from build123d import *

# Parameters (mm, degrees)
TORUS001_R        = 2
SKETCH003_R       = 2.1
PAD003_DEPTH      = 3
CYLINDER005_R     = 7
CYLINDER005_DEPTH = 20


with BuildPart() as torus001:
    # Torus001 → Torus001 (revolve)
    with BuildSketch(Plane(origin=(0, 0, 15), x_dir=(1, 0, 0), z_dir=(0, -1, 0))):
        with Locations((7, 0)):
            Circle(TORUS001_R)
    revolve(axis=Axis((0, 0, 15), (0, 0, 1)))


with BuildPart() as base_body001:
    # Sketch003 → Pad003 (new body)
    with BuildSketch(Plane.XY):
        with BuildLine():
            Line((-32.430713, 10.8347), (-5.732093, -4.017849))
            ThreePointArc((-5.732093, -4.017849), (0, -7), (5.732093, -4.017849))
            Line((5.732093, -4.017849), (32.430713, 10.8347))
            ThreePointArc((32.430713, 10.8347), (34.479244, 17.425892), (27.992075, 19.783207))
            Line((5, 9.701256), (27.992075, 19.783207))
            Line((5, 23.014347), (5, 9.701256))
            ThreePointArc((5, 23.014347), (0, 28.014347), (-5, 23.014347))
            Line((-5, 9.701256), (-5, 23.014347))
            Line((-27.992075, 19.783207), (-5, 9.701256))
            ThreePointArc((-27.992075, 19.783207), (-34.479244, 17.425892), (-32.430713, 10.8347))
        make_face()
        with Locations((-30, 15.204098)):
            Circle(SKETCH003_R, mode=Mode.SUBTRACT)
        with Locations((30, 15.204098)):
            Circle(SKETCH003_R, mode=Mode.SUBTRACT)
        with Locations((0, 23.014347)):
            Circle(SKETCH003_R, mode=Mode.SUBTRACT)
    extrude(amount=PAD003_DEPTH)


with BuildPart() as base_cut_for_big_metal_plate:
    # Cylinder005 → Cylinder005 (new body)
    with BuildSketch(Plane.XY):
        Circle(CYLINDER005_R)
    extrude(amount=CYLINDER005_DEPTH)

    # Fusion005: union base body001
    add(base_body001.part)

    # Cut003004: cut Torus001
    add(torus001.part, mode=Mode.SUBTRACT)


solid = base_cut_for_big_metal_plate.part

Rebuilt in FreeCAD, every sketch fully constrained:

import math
import FreeCAD as App
import Part
import Sketcher
Q = App.Units.Quantity

doc = App.newDocument("Part")
body = doc.addObject("PartDesign::Body", "Body")

sketch1 = doc.addObject("Sketcher::SketchObject", "Sketch")
body.addObject(sketch1)
sketch1.AttachmentSupport = (doc.XZ_Plane, [""])
sketch1.MapMode = "FlatFace"
sketch1.addGeometry(Part.Circle(App.Vector(7, 15, 0), App.Vector(0, 0, 1), 2), False)
sketch1.addConstraint([
    Sketcher.Constraint("Diameter", 0, Q("4 mm")),
    Sketcher.Constraint("DistanceX", -1, 1, 0, 3, Q("7 mm")),
    Sketcher.Constraint("DistanceY", -1, 1, 0, 3, Q("15 mm")),
])
revolution = doc.addObject("PartDesign::Revolution", "Revolution")
body.addObject(revolution)
revolution.Profile = sketch1
revolution.ReferenceAxis = (sketch1, ["V_Axis"])
revolution.Angle = 360
body2 = doc.addObject("PartDesign::Body", "Body001")

sketch2 = doc.addObject("Sketcher::SketchObject", "Sketch001")
body2.addObject(sketch2)
sketch2.AttachmentSupport = (doc.getObject("XY_Plane001"), [""])
sketch2.MapMode = "FlatFace"
sketch2.addGeometry([
    Part.LineSegment(App.Vector(-32.430713, 10.8347, 0), App.Vector(-5.732093, -4.017849, 0)),
    Part.ArcOfCircle(Part.Circle(App.Vector(0, 0, 0), App.Vector(0, 0, 1), 7), math.radians(-144.971877), math.radians(-35.028123)),
    Part.LineSegment(App.Vector(5.732093, -4.017849, 0), App.Vector(32.430713, 10.8347, 0)),
    Part.ArcOfCircle(Part.Circle(App.Vector(29.999999, 15.204098, 0), App.Vector(0, 0, 1), 5), math.radians(-60.912634), math.radians(113.677291)),
    Part.LineSegment(App.Vector(27.992075, 19.783207, 0), App.Vector(5, 9.701256, 0)),
    Part.LineSegment(App.Vector(5, 9.701256, 0), App.Vector(5, 23.014347, 0)),
    Part.ArcOfCircle(Part.Circle(App.Vector(0, 23.014347, 0), App.Vector(0, 0, 1), 5), math.radians(0), math.radians(180)),
    Part.LineSegment(App.Vector(-5, 23.014347, 0), App.Vector(-5, 9.701256, 0)),
    Part.LineSegment(App.Vector(-5, 9.701256, 0), App.Vector(-27.992075, 19.783207, 0)),
    Part.ArcOfCircle(Part.Circle(App.Vector(-29.999999, 15.204098, 0), App.Vector(0, 0, 1), 5), math.radians(66.322709), math.radians(240.912634)),
    Part.Circle(App.Vector(-30, 15.204098, 0), App.Vector(0, 0, 1), 2.1),
    Part.Circle(App.Vector(30, 15.204098, 0), App.Vector(0, 0, 1), 2.1),
    Part.Circle(App.Vector(0, 23.014347, 0), App.Vector(0, 0, 1), 2.1),
], False)
sketch2.addConstraint([
    Sketcher.Constraint("Coincident", 0, 2, 1, 1),
    Sketcher.Constraint("Coincident", 1, 2, 2, 1),
    Sketcher.Constraint("Coincident", 2, 2, 3, 1),
    Sketcher.Constraint("Coincident", 3, 2, 4, 1),
    Sketcher.Constraint("Coincident", 4, 2, 5, 1),
    Sketcher.Constraint("Coincident", 5, 2, 6, 1),
    Sketcher.Constraint("Coincident", 6, 2, 7, 1),
    Sketcher.Constraint("Coincident", 7, 2, 8, 1),
    Sketcher.Constraint("Coincident", 8, 2, 9, 1),
    Sketcher.Constraint("Coincident", 9, 2, 0, 1),
    Sketcher.Constraint("Vertical", 5),
    Sketcher.Constraint("Vertical", 7),
    Sketcher.Constraint("Coincident", 1, 3, -1, 1),
    Sketcher.Constraint("Coincident", 10, 3, 9, 3),
    Sketcher.Constraint("Coincident", 11, 3, 3, 3),
    Sketcher.Constraint("Coincident", 12, 3, 6, 3),
    Sketcher.Constraint("PointOnObject", 6, 3, -2),
    Sketcher.Constraint("Radius", 1, Q("7 mm")),
    Sketcher.Constraint("Radius", 3, Q("5 mm")),
    Sketcher.Constraint("Radius", 6, Q("5 mm")),
    Sketcher.Constraint("Radius", 9, Q("5 mm")),
    Sketcher.Constraint("Diameter", 10, Q("4.2 mm")),
    Sketcher.Constraint("Diameter", 11, Q("4.2 mm")),
    Sketcher.Constraint("Diameter", 12, Q("4.2 mm")),
    Sketcher.Constraint("DistanceX", -1, 1, 3, 3, Q("29.999999 mm")),
    Sketcher.Constraint("DistanceX", 9, 3, -1, 1, Q("29.999999 mm")),
    Sketcher.Constraint("DistanceY", 5, 1, 5, 2, Q("13.313091 mm")),
    Sketcher.Constraint("DistanceY", 7, 2, 7, 1, Q("13.313091 mm")),
    Sketcher.Constraint("DistanceY", -1, 1, 2, 2, Q("10.8347 mm")),
    Sketcher.Constraint("DistanceY", -1, 1, 9, 2, Q("10.8347 mm")),
    Sketcher.Constraint("DistanceY", 2, 2, 11, 3, Q("4.369398 mm")),
    Sketcher.Constraint("DistanceY", 9, 2, 10, 3, Q("4.369398 mm")),
    Sketcher.Constraint("DistanceY", 0, 2, -1, 1, Q("4.017849 mm")),
    Sketcher.Constraint("DistanceY", 1, 2, -1, 1, Q("4.017849 mm")),
    Sketcher.Constraint("DistanceY", 3, 3, 6, 3, Q("7.810249 mm")),
    Sketcher.Constraint("DistanceY", 11, 3, 3, 2, Q("4.579109 mm")),
    Sketcher.Constraint("DistanceY", 4, 2, 6, 3, Q("13.313091 mm")),
    Sketcher.Constraint("DistanceY", 4, 2, 6, 2, Q("13.313091 mm")),
    Sketcher.Constraint("DistanceY", 10, 3, 8, 2, Q("4.579109 mm")),
])
pad1 = doc.addObject("PartDesign::Pad", "Pad")
body2.addObject(pad1)
pad1.Profile = sketch2
pad1.Length = 3
body3 = doc.addObject("PartDesign::Body", "Body002")

sketch3 = doc.addObject("Sketcher::SketchObject", "Sketch002")
body3.addObject(sketch3)
sketch3.AttachmentSupport = (doc.getObject("XY_Plane002"), [""])
sketch3.MapMode = "FlatFace"
sketch3.addGeometry(Part.Circle(App.Vector(0, 0, 0), App.Vector(0, 0, 1), 7), False)
sketch3.addConstraint([
    Sketcher.Constraint("Coincident", 0, 3, -1, 1),
    Sketcher.Constraint("Diameter", 0, Q("14 mm")),
])
pad2 = doc.addObject("PartDesign::Pad", "Pad001")
body3.addObject(pad2)
pad2.Profile = sketch3
pad2.Length = 20
doc.recompute()

boolean = doc.addObject("PartDesign::Boolean", "Boolean")
body3.addObject(boolean)
boolean.Type = "Fuse"
boolean.addObjects([body2])
doc.recompute()

boolean2 = doc.addObject("PartDesign::Boolean", "Boolean001")
body3.addObject(boolean2)
boolean2.Type = "Cut"
boolean2.addObjects([body])

doc.recompute()
